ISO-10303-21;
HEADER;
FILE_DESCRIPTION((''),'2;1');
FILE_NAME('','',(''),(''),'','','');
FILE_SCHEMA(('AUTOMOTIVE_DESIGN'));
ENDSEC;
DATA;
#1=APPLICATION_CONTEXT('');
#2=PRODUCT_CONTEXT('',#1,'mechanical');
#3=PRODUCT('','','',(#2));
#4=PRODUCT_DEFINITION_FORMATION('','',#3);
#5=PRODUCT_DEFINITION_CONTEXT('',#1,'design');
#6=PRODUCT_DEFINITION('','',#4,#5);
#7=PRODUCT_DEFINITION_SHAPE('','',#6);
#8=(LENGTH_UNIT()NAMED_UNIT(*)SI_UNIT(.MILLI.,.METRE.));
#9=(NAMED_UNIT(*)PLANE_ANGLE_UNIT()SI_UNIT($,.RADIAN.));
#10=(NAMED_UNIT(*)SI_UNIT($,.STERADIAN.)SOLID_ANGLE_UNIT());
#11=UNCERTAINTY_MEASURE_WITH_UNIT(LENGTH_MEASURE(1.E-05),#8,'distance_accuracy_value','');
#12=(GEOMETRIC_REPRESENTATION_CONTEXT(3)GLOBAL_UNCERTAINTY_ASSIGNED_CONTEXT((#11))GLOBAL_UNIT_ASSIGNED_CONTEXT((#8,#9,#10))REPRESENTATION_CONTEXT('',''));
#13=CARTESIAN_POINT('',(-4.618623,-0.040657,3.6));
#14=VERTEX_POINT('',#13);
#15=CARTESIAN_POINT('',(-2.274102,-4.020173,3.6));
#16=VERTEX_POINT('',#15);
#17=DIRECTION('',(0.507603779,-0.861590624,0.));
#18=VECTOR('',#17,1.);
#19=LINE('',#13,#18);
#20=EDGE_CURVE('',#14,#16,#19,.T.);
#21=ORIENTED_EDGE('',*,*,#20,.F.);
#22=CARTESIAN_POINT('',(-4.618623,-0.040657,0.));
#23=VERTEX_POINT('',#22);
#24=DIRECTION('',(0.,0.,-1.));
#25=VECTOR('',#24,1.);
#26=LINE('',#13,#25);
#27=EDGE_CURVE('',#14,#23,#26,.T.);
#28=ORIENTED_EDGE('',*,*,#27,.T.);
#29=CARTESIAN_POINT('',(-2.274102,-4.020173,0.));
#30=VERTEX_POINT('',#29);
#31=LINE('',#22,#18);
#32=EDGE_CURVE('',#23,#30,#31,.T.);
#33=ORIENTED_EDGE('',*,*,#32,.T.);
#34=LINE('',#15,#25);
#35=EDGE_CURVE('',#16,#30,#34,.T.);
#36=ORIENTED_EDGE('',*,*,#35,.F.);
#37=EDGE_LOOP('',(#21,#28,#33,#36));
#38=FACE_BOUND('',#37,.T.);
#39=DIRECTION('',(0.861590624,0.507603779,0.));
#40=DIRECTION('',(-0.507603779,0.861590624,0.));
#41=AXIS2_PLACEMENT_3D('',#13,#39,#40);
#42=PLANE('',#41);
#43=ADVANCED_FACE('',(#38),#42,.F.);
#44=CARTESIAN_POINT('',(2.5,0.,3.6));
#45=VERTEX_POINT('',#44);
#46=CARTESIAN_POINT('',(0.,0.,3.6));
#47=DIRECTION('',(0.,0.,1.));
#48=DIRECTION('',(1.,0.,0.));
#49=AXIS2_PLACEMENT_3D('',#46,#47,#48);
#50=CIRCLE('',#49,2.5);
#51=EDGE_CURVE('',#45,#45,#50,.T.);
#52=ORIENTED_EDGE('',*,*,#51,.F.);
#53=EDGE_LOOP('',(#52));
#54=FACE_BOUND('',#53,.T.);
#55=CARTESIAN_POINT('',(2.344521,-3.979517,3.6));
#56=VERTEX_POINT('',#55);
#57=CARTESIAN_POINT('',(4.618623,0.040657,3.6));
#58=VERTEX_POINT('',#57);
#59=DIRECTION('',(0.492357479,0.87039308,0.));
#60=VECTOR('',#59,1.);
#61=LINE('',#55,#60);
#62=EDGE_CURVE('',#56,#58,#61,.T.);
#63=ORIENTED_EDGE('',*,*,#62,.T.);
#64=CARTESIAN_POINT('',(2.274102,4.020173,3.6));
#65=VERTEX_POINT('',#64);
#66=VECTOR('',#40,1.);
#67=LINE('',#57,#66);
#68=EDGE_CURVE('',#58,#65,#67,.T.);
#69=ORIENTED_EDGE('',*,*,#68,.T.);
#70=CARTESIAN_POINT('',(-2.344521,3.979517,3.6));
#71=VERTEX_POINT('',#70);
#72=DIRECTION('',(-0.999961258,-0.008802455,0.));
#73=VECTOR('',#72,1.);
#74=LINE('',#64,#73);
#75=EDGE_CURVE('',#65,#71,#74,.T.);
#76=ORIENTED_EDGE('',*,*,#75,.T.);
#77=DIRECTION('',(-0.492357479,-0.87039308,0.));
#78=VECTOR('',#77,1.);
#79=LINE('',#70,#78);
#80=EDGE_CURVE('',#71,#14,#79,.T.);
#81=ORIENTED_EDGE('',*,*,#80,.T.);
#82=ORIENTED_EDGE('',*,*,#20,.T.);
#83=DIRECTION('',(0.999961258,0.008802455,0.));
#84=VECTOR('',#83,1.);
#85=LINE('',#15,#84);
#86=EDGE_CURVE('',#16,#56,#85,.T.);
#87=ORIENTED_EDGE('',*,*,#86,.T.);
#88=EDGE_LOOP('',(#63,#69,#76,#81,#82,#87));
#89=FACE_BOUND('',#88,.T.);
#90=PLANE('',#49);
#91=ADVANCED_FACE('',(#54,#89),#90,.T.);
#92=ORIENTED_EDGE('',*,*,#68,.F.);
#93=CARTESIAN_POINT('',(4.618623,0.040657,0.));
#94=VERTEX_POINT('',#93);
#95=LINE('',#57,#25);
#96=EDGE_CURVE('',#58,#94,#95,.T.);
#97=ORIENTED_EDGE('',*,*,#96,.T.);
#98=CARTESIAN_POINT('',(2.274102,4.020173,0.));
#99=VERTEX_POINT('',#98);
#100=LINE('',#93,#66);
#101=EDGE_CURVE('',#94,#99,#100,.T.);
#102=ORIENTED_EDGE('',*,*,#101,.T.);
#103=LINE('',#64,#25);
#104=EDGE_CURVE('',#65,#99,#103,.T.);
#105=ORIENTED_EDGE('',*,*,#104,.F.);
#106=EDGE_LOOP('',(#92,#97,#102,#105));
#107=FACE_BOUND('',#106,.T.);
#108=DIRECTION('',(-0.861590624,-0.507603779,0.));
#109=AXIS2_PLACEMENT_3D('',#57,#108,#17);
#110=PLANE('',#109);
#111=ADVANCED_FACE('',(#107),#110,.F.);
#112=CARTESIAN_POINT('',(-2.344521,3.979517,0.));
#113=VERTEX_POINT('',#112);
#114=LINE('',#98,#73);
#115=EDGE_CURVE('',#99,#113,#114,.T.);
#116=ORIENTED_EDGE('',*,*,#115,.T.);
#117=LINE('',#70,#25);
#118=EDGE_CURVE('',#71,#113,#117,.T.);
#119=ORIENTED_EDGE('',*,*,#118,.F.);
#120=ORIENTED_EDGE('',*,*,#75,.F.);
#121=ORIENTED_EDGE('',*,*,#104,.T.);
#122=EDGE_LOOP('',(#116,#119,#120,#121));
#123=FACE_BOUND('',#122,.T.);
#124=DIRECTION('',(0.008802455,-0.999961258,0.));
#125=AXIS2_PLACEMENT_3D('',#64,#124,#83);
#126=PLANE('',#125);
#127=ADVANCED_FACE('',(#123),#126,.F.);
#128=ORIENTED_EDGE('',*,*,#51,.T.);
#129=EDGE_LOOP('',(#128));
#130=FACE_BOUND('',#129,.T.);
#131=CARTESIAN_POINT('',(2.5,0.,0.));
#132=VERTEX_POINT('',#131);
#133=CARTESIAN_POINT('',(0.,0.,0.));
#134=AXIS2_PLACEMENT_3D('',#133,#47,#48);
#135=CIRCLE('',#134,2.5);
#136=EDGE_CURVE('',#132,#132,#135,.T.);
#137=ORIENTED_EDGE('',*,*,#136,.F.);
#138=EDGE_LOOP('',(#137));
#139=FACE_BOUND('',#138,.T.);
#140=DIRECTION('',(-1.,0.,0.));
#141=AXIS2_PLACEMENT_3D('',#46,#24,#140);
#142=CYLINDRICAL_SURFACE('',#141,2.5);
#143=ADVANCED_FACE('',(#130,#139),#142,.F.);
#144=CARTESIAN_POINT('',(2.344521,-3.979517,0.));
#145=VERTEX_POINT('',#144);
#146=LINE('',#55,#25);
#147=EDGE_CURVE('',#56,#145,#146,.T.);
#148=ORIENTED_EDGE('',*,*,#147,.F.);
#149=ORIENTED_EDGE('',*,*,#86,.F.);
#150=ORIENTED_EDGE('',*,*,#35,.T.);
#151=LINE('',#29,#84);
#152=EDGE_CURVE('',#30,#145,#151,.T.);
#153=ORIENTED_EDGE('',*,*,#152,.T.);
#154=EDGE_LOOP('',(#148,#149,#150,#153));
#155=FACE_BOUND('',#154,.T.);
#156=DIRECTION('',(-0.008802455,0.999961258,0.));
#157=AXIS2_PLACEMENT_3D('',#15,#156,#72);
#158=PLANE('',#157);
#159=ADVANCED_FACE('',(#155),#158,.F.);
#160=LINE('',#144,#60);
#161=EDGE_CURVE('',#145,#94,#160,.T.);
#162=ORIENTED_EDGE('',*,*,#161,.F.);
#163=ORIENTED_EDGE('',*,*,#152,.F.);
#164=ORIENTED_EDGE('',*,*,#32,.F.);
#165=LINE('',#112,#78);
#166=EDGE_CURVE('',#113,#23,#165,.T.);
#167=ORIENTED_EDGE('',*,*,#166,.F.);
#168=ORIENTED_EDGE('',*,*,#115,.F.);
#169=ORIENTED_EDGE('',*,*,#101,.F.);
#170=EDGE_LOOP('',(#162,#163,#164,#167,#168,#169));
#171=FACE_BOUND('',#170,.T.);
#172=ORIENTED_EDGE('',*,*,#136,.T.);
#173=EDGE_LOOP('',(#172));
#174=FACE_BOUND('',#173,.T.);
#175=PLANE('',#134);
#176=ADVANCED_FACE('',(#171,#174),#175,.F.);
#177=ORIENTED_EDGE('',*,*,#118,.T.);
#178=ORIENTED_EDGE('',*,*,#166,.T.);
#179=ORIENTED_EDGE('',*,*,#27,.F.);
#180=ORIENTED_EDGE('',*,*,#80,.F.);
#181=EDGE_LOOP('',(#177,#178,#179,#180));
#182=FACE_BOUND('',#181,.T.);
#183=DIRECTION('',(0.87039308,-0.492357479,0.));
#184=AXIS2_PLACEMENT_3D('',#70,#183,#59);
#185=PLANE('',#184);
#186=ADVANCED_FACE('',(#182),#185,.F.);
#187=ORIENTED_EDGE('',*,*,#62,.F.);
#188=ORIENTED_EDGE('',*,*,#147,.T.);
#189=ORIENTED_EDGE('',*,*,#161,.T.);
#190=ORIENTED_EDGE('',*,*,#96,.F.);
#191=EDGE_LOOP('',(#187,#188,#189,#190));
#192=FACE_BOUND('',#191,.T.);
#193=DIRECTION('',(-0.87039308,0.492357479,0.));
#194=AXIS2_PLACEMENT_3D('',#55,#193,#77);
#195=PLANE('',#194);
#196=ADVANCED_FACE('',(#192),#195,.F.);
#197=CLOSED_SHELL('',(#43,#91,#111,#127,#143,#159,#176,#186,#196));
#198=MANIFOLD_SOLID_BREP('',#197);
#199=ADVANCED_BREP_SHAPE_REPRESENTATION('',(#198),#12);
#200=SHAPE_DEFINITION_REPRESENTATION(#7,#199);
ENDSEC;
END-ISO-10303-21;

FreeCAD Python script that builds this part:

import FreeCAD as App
import Part
import Sketcher
Q = App.Units.Quantity


def add_polygon(sketch, points):
    """Adds a closed chain of lines whose ends are joined by coincident constraints."""
    first, n = sketch.GeometryCount, len(points)
    for a, b in zip(points, points[1:] + points[:1]):
        sketch.addGeometry(Part.LineSegment(App.Vector(*a, 0), App.Vector(*b, 0)), False)
    for i in range(n):
        sketch.addConstraint(Sketcher.Constraint("Coincident", first + i, 2, first + (i + 1) % n, 1))

doc = App.newDocument("Part")
body = doc.addObject("PartDesign::Body", "Body")

sketch1 = body.newObject("Sketcher::SketchObject", "Sketch")
sketch1.AttachmentSupport = (doc.getObject("XY_Plane"), [""])
sketch1.MapMode = "FlatFace"
add_polygon(sketch1, [(2.344521, -3.979517), (4.618623, 0.040657), (2.274102, 4.020173), (-2.344521, 3.979517), (-4.618623, -0.040657), (-2.274102, -4.020173)])
sketch1.addGeometry(Part.Circle(App.Vector(0, 0, 0), App.Vector(0, 0, 1), 2.5), False)
sketch1.addConstraint([
    Sketcher.Constraint("Coincident", 6, 3, -1, 1),
    Sketcher.Constraint("Symmetric", 0, 2, 3, 2, -1, 1),
    Sketcher.Constraint("Symmetric", 1, 2, 4, 2, -1, 1),
    Sketcher.Constraint("Symmetric", 2, 2, 5, 2, -1, 1),
    Sketcher.Constraint("Equal", 0, 1),
    Sketcher.Constraint("Equal", 1, 2),
    Sketcher.Constraint("Diameter", 6, Q("5 mm")),
    Sketcher.Constraint("DistanceX", -1, 1, 1, 2, Q("2.274102 mm")),
    Sketcher.Constraint("DistanceX", 3, 2, 2, 2, Q("2.274102 mm")),
    Sketcher.Constraint("DistanceX", 2, 2, -1, 1, Q("2.344521 mm")),
    Sketcher.Constraint("DistanceY", 0, 2, 2, 2, Q("3.93886 mm")),
])
pad1 = body.newObject("PartDesign::Pad", "Pad")
pad1.Profile = sketch1
pad1.Length = 3.6

doc.recompute()
